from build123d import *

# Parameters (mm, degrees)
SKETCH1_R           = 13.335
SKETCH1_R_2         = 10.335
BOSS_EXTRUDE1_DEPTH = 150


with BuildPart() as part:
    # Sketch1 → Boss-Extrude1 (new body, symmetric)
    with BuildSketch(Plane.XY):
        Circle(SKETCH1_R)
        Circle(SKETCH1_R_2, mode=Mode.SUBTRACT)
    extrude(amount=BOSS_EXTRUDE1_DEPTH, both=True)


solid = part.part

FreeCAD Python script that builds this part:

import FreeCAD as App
import Part
import Sketcher

V = App.Vector
Q = App.Units.Quantity

doc = App.newDocument("Part")
body = doc.addObject("PartDesign::Body", "Body")

sketch1 = doc.addObject("Sketcher::SketchObject", "Sketch")
body.addObject(sketch1)
sketch1.AttachmentSupport = (doc.XY_Plane, [""])
sketch1.MapMode = "FlatFace"
sketch1.addGeometry([
    Part.Circle(V(0, 0, 0), V(0, 0, 1), 13.335),
    Part.Circle(V(0, 0, 0), V(0, 0, 1), 10.335),
], False)
sketch1.addConstraint([
    Sketcher.Constraint("Coincident", 0, 3, -1, 1),
    Sketcher.Constraint("Coincident", 1, 3, -1, 1),
    Sketcher.Constraint("Diameter", 0, Q("26.67 mm")),
    Sketcher.Constraint("Diameter", 1, Q("20.67 mm")),
])
pad1 = doc.addObject("PartDesign::Pad", "Pad")
body.addObject(pad1)
pad1.Profile = sketch1
pad1.Length = 300
pad1.Midplane = True

doc.recompute()
